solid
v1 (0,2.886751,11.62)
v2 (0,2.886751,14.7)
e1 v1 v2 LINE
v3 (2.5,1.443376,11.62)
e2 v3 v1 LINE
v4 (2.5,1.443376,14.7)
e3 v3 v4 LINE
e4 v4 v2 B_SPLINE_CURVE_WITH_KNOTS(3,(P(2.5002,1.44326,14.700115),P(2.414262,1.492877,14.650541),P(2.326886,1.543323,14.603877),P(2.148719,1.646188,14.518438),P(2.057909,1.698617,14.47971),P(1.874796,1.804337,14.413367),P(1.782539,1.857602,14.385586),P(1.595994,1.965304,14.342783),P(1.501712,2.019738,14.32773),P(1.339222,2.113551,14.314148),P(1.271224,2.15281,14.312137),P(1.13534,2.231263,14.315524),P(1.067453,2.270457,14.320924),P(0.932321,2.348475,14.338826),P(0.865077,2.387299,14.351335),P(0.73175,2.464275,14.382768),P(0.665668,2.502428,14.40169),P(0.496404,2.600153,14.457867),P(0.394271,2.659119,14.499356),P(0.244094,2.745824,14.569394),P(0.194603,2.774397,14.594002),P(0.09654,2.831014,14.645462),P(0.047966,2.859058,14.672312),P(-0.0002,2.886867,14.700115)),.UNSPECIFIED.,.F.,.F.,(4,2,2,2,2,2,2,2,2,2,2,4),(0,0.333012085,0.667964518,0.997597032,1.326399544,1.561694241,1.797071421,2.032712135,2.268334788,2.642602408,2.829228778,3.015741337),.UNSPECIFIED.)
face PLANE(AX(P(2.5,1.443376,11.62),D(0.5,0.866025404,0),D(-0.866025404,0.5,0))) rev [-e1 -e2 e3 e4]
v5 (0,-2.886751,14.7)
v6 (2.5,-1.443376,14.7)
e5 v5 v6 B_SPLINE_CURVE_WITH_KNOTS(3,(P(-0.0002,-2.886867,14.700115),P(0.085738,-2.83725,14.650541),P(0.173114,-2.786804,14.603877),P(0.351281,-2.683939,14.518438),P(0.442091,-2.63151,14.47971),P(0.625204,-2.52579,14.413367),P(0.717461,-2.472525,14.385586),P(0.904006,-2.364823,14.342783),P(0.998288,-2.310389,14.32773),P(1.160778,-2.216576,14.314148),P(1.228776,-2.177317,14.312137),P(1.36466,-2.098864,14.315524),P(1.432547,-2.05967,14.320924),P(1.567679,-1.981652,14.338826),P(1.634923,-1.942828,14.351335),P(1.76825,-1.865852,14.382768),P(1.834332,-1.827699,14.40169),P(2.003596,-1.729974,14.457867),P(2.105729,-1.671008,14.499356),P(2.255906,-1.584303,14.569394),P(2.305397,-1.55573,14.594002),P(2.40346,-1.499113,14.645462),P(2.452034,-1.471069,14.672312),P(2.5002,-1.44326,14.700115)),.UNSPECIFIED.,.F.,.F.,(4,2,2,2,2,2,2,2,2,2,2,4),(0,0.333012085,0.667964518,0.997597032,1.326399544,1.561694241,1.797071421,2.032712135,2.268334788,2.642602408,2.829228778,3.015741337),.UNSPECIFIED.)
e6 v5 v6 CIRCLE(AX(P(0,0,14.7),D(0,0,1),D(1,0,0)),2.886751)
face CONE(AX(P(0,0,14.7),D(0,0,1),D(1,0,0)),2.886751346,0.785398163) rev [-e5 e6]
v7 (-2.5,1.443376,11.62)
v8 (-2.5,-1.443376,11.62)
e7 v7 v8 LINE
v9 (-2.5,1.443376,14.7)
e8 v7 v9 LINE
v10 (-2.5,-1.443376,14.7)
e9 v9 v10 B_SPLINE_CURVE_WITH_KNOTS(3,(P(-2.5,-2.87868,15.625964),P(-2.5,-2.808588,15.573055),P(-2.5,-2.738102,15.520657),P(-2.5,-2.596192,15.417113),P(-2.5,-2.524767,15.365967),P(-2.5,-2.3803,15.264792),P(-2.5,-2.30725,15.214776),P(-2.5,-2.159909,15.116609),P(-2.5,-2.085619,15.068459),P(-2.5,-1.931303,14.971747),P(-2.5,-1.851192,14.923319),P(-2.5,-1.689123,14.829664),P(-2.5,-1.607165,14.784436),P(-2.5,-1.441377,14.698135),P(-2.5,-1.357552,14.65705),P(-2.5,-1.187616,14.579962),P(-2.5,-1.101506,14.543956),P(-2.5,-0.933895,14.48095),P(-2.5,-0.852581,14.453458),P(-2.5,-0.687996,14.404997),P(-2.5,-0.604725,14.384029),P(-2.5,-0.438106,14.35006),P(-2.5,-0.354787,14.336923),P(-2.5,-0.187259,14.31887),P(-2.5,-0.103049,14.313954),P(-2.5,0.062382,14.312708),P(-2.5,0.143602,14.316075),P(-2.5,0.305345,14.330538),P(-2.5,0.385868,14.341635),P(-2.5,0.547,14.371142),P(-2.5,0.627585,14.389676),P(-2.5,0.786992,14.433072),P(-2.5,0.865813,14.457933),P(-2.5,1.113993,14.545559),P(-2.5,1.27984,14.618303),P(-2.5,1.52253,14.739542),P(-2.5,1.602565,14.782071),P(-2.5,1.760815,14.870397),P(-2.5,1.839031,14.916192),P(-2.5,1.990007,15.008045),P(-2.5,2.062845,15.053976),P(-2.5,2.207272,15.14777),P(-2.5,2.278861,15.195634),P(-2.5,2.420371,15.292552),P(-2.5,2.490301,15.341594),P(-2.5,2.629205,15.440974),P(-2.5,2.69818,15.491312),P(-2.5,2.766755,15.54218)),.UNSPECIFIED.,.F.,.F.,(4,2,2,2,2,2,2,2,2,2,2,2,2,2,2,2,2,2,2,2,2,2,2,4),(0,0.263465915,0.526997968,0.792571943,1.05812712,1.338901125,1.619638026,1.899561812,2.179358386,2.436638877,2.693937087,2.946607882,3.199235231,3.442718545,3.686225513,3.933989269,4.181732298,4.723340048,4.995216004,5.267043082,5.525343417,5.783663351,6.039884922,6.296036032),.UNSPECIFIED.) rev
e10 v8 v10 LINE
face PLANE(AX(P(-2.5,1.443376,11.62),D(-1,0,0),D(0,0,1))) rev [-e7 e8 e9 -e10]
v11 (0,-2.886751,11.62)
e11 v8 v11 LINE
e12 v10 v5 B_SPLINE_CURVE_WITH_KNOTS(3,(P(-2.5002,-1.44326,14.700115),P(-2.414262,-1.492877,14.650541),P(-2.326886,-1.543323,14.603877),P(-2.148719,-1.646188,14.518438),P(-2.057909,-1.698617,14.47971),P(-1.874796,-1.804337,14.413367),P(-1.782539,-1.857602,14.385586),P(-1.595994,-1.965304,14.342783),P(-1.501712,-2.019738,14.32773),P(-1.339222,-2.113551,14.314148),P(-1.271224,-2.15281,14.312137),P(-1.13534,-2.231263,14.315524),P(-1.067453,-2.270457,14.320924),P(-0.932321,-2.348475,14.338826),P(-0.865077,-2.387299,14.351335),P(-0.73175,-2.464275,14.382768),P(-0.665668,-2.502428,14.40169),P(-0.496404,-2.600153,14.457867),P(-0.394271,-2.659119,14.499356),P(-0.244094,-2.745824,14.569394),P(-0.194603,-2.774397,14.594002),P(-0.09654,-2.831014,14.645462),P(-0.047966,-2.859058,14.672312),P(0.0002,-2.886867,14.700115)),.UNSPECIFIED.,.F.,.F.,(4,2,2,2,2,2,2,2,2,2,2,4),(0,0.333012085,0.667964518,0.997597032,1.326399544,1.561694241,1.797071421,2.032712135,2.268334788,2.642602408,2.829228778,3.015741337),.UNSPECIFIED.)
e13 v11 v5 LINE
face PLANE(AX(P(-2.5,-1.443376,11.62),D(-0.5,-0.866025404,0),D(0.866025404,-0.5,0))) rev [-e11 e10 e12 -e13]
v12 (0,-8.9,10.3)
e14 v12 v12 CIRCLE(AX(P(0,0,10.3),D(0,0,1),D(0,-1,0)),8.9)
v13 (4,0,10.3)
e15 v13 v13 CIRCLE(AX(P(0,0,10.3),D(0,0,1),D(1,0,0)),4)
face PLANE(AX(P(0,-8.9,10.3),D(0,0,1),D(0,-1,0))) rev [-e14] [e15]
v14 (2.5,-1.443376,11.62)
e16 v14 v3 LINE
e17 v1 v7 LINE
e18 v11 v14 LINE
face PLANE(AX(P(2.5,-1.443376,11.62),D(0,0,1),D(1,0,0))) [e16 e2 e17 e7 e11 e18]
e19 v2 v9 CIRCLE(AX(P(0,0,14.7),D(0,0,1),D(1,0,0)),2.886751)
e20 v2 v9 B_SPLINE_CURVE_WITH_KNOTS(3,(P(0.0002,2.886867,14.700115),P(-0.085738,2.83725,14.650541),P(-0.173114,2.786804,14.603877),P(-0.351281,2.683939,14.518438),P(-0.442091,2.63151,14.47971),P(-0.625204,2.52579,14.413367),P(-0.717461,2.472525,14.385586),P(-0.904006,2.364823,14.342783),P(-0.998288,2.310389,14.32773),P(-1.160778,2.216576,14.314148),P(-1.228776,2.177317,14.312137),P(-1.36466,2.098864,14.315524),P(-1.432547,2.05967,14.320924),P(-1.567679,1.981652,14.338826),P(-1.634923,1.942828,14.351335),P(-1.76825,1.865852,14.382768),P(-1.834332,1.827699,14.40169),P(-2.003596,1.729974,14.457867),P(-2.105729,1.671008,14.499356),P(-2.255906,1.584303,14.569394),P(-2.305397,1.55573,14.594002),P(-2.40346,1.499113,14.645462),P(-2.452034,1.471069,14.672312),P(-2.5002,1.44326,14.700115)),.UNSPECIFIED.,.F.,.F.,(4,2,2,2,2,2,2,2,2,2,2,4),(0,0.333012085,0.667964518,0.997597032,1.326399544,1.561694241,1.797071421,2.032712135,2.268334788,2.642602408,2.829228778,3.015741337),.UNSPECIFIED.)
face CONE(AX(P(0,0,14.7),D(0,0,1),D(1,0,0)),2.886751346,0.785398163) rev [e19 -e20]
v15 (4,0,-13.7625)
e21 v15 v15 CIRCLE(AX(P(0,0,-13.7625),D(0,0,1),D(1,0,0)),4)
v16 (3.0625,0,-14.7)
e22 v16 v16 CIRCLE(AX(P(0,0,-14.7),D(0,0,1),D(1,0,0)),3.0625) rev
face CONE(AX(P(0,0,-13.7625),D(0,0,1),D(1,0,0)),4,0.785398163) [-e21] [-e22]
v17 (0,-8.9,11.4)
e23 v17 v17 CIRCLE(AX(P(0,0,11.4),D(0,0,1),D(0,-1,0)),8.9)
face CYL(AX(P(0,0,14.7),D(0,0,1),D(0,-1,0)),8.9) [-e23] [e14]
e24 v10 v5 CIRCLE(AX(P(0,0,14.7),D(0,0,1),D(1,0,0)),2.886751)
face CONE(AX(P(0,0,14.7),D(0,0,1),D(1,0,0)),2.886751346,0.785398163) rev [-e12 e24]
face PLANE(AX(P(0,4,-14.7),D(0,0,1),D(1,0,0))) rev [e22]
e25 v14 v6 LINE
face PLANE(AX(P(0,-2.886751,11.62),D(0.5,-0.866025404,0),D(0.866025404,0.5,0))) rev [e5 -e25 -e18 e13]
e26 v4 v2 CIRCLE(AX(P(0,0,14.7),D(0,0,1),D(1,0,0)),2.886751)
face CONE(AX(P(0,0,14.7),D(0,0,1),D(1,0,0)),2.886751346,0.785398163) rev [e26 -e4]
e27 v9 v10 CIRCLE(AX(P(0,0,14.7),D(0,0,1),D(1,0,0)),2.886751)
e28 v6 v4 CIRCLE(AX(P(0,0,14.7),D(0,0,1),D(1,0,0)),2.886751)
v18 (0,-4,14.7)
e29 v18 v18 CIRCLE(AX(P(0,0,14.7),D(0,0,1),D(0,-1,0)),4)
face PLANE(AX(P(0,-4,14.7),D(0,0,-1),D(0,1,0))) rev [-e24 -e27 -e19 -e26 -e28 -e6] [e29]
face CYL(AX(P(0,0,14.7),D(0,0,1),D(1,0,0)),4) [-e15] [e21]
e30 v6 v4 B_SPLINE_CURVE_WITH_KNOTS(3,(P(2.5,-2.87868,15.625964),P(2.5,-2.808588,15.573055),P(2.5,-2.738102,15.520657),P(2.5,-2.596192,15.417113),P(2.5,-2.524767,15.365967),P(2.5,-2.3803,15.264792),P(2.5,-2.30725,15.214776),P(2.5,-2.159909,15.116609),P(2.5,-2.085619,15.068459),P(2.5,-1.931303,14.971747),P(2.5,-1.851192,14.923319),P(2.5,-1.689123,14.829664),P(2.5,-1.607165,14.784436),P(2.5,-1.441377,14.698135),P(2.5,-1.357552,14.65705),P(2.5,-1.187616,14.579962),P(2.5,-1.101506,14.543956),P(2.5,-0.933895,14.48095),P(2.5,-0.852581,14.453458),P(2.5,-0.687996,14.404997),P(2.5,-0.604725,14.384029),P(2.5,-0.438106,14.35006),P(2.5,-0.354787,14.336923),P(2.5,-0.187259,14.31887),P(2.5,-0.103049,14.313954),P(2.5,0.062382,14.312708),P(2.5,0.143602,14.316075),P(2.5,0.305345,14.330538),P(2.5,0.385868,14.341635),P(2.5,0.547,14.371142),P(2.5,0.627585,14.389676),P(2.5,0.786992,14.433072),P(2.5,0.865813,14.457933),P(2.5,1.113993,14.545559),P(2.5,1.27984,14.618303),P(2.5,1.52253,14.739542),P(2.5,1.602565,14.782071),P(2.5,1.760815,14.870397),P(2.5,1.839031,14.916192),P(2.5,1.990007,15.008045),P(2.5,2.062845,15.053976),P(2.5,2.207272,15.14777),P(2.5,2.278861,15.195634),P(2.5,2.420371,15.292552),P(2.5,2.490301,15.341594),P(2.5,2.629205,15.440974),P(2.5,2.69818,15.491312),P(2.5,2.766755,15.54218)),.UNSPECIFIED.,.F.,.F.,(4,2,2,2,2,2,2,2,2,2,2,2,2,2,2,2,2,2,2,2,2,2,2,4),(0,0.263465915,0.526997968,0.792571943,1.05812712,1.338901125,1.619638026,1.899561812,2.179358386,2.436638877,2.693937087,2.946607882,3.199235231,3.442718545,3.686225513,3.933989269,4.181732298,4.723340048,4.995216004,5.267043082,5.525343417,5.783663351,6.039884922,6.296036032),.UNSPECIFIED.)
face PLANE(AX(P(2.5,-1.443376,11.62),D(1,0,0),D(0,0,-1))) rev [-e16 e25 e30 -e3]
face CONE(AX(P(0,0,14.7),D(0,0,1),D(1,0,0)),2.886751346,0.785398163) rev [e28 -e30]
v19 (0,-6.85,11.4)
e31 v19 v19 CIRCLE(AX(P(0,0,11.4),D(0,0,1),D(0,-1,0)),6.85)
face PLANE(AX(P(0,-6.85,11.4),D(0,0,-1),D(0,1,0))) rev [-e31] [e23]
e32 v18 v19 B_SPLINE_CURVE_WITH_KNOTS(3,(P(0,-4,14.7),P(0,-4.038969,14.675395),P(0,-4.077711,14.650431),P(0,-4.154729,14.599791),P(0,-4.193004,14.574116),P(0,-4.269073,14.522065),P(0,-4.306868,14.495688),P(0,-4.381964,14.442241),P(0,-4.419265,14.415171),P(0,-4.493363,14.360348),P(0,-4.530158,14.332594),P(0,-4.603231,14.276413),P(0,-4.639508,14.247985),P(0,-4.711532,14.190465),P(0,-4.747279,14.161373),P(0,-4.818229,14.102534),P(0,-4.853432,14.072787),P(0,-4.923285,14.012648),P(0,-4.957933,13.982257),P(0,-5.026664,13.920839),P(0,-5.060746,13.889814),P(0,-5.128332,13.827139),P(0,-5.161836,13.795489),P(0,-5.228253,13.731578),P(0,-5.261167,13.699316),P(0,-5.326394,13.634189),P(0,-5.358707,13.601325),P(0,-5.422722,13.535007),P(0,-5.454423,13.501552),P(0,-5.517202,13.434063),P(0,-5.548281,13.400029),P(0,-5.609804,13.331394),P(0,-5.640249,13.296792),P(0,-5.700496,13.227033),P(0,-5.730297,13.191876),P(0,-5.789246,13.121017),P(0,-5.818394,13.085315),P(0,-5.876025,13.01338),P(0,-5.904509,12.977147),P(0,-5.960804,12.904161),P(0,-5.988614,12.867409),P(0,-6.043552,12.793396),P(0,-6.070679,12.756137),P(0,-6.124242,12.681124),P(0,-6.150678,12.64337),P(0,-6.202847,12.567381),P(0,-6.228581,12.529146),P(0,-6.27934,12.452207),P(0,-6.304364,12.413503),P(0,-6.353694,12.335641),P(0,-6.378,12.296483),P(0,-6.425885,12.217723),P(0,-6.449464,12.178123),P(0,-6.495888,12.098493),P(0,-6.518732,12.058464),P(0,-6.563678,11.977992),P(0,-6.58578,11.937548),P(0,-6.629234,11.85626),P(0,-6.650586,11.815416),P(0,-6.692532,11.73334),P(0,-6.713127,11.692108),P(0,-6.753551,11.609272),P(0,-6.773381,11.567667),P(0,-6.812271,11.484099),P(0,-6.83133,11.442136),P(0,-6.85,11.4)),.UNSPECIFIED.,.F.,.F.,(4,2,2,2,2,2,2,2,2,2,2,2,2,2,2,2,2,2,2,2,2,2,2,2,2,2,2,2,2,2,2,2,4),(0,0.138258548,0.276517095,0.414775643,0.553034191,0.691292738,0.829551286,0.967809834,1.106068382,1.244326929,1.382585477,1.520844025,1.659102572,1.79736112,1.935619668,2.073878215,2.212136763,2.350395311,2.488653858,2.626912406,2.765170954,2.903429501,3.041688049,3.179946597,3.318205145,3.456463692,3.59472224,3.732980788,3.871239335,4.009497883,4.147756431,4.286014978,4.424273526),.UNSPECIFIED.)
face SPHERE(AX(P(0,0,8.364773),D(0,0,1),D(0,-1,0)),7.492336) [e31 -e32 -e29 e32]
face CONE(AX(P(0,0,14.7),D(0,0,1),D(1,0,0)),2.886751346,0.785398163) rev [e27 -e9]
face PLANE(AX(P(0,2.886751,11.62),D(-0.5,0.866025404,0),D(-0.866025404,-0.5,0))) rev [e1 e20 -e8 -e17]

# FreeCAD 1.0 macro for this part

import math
import FreeCAD as App
import Part
import Sketcher
Q = App.Units.Quantity


def edges_at(feature, points):
    """Names of the edges that pass closest to the given points."""
    edges = feature.Shape.Edges
    near = lambda p: min(range(len(edges)), key=lambda i: edges[i].distToShape(Part.Vertex(*p))[0])
    return sorted({f"Edge{near(p) + 1}" for p in points})

doc = App.newDocument("Part")
params = doc.addObject("Spreadsheet::Sheet", "Params")
for row, (alias, value) in enumerate([
    ("sketch1_width", "4 mm"),
    ("sketch1_height", "25 mm"),
    ("revolution_angle", "360 deg"),
    ("chamfer_size", "0.9375 mm"),
    ("sketch2_width", "4 mm"),
    ("sketch2_width2", "8.9 mm"),
    ("sketch2_height", "4.4 mm"),
    ("sketch2_height2", "1.1 mm"),
    ("sketch2_width3", "2.05 mm"),
    ("revolution2_angle", "360 deg"),
    ("pocket1_length", "3.08 mm"),
    ("groove_angle", "360 deg"),
], start=1):
    params.set(f"A{row}", alias)
    params.set(f"B{row}", "=" + value)
    params.setAlias(f"B{row}", alias)

body = doc.addObject("PartDesign::Body", "Body")

sketch1 = body.newObject("Sketcher::SketchObject", "Sketch")
sketch1.AttachmentSupport = (doc.getObject("YZ_Plane"), [""])
sketch1.MapMode = "FlatFace"
sketch1.addGeometry(Part.LineSegment(App.Vector(4, 10.3, 0), App.Vector(0, 10.3, 0)), False)
sketch1.addGeometry(Part.LineSegment(App.Vector(0, 10.3, 0), App.Vector(0, -14.7, 0)), False)
sketch1.addGeometry(Part.LineSegment(App.Vector(0, -14.7, 0), App.Vector(4, -14.7, 0)), False)
sketch1.addGeometry(Part.LineSegment(App.Vector(4, -14.7, 0), App.Vector(4, 10.3, 0)), False)
sketch1.addConstraint(Sketcher.Constraint("Coincident", 0, 2, 1, 1))
sketch1.addConstraint(Sketcher.Constraint("Coincident", 1, 2, 2, 1))
sketch1.addConstraint(Sketcher.Constraint("Coincident", 2, 2, 3, 1))
sketch1.addConstraint(Sketcher.Constraint("Coincident", 3, 2, 0, 1))
sketch1.addConstraint(Sketcher.Constraint("Horizontal", 0))
sketch1.addConstraint(Sketcher.Constraint("Vertical", 1))
sketch1.addConstraint(Sketcher.Constraint("Horizontal", 2))
sketch1.addConstraint(Sketcher.Constraint("Vertical", 3))
sketch1.addConstraint(Sketcher.Constraint("PointOnObject", 0, 2, -2))
sketch1.addConstraint(Sketcher.Constraint("DistanceX", 0, 2, 0, 1, 4.0))
sketch1.addConstraint(Sketcher.Constraint("DistanceY", 1, 2, 1, 1, 25.0))
sketch1.addConstraint(Sketcher.Constraint("DistanceY", -1, 1, 0, 2, 10.3))
sketch1.setExpression("Constraints[9]", "Params.sketch1_width")
sketch1.setExpression("Constraints[10]", "Params.sketch1_height")
revolution = body.newObject("PartDesign::Revolution", "Revolution")
revolution.Profile = sketch1
revolution.ReferenceAxis = (sketch1, ["V_Axis"])
revolution.setExpression("Angle", "Params.revolution_angle")
doc.recompute()

chamfer = body.newObject("PartDesign::Chamfer", "Chamfer")
chamfer.Base = (revolution, edges_at(revolution, [(-4, 0, -14.7)]))
chamfer.setExpression("Size", "Params.chamfer_size")

sketch2 = body.newObject("Sketcher::SketchObject", "Sketch001")
sketch2.AttachmentSupport = (doc.getObject("YZ_Plane"), [""])
sketch2.MapMode = "FlatFace"
sketch2.addGeometry(Part.LineSegment(App.Vector(0, 14.7, 0), App.Vector(0, 10.3, 0)), False)
sketch2.addGeometry(Part.LineSegment(App.Vector(0, 10.3, 0), App.Vector(8.9, 10.3, 0)), False)
sketch2.addGeometry(Part.LineSegment(App.Vector(8.9, 10.3, 0), App.Vector(8.9, 11.4, 0)), False)
sketch2.addGeometry(Part.LineSegment(App.Vector(8.9, 11.4, 0), App.Vector(6.85, 11.4, 0)), False)
sketch2.addGeometry(Part.ArcOfCircle(Part.Circle(App.Vector(0, 8.364773, 0), App.Vector(0, 0, 1), 7.492336), math.radians(23.898078), math.radians(57.73209)), False)
sketch2.addGeometry(Part.LineSegment(App.Vector(4, 14.7, 0), App.Vector(0, 14.7, 0)), False)
sketch2.addConstraint(Sketcher.Constraint("Coincident", 0, 2, 1, 1))
sketch2.addConstraint(Sketcher.Constraint("Coincident", 1, 2, 2, 1))
sketch2.addConstraint(Sketcher.Constraint("Coincident", 2, 2, 3, 1))
sketch2.addConstraint(Sketcher.Constraint("Coincident", 3, 2, 4, 1))
sketch2.addConstraint(Sketcher.Constraint("Coincident", 4, 2, 5, 1))
sketch2.addConstraint(Sketcher.Constraint("Coincident", 5, 2, 0, 1))
sketch2.addConstraint(Sketcher.Constraint("Vertical", 0))
sketch2.addConstraint(Sketcher.Constraint("Horizontal", 1))
sketch2.addConstraint(Sketcher.Constraint("Vertical", 2))
sketch2.addConstraint(Sketcher.Constraint("Horizontal", 3))
sketch2.addConstraint(Sketcher.Constraint("Horizontal", 5))
sketch2.addConstraint(Sketcher.Constraint("PointOnObject", 4, 3, -2))
sketch2.addConstraint(Sketcher.Constraint("PointOnObject", 0, 2, -2))
sketch2.addConstraint(Sketcher.Constraint("DistanceX", 5, 2, 5, 1, 4.0))
sketch2.addConstraint(Sketcher.Constraint("DistanceX", 1, 1, 1, 2, 8.9))
sketch2.addConstraint(Sketcher.Constraint("DistanceY", 0, 2, 0, 1, 4.4))
sketch2.addConstraint(Sketcher.Constraint("DistanceY", 2, 1, 2, 2, 1.1))
sketch2.addConstraint(Sketcher.Constraint("DistanceX", 3, 2, 3, 1, 2.05))
sketch2.addConstraint(Sketcher.Constraint("DistanceY", -1, 1, 0, 2, 10.3))
sketch2.setExpression("Constraints[13]", "Params.sketch2_width")
sketch2.setExpression("Constraints[14]", "Params.sketch2_width2")
sketch2.setExpression("Constraints[15]", "Params.sketch2_height")
sketch2.setExpression("Constraints[16]", "Params.sketch2_height2")
sketch2.setExpression("Constraints[17]", "Params.sketch2_width3")
revolution2 = body.newObject("PartDesign::Revolution", "Revolution001")
revolution2.Profile = sketch2
revolution2.ReferenceAxis = (sketch2, ["V_Axis"])
revolution2.setExpression("Angle", "Params.revolution2_angle")

sketch3 = body.newObject("Sketcher::SketchObject", "Sketch002")
sketch3.AttachmentSupport = (doc.getObject("XY_Plane"), [""])
sketch3.MapMode = "FlatFace"
sketch3.AttachmentOffset = App.Placement(App.Vector(0, 0, 14.7), App.Rotation())
sketch3.addGeometry(Part.LineSegment(App.Vector(2.5, -1.443376, 0), App.Vector(2.5, 1.443376, 0)), False)
sketch3.addGeometry(Part.LineSegment(App.Vector(2.5, 1.443376, 0), App.Vector(0, 2.886751, 0)), False)
sketch3.addGeometry(Part.LineSegment(App.Vector(0, 2.886751, 0), App.Vector(-2.5, 1.443376, 0)), False)
sketch3.addGeometry(Part.LineSegment(App.Vector(-2.5, 1.443376, 0), App.Vector(-2.5, -1.443376, 0)), False)
sketch3.addGeometry(Part.LineSegment(App.Vector(-2.5, -1.443376, 0), App.Vector(0, -2.886751, 0)), False)
sketch3.addGeometry(Part.LineSegment(App.Vector(0, -2.886751, 0), App.Vector(2.5, -1.443376, 0)), False)
sketch3.addConstraint(Sketcher.Constraint("Coincident", 0, 2, 1, 1))
sketch3.addConstraint(Sketcher.Constraint("Coincident", 1, 2, 2, 1))
sketch3.addConstraint(Sketcher.Constraint("Coincident", 2, 2, 3, 1))
sketch3.addConstraint(Sketcher.Constraint("Coincident", 3, 2, 4, 1))
sketch3.addConstraint(Sketcher.Constraint("Coincident", 4, 2, 5, 1))
sketch3.addConstraint(Sketcher.Constraint("Coincident", 5, 2, 0, 1))
sketch3.addConstraint(Sketcher.Constraint("Vertical", 0))
sketch3.addConstraint(Sketcher.Constraint("Vertical", 3))
sketch3.addConstraint(Sketcher.Constraint("Symmetric", 0, 2, 3, 2, -1, 1))
sketch3.addConstraint(Sketcher.Constraint("Symmetric", 1, 2, 4, 2, -1, 1))
sketch3.addConstraint(Sketcher.Constraint("PointOnObject", 1, 2, -2))
sketch3.addConstraint(Sketcher.Constraint("Parallel", 2, 5))
sketch3.addConstraint(Sketcher.Constraint("Horizontal", 0, 2, 2, 2))
sketch3.addConstraint(Sketcher.Constraint("Angle", 1, Q("150 deg")))
sketch3.addConstraint(Sketcher.Constraint("DistanceX", 2, 2, 0, 2, 5.0))
sketch3.addConstraint(Sketcher.Constraint("DistanceY", 0, 1, 0, 2, 2.886751))
pocket1 = body.newObject("PartDesign::Pocket", "Pocket")
pocket1.Profile = sketch3
pocket1.setExpression("Length", "Params.pocket1_length")

sketch4 = body.newObject("Sketcher::SketchObject", "Sketch003")
sketch4.AttachmentSupport = (doc.getObject("YZ_Plane"), [""])
sketch4.MapMode = "FlatFace"
sketch4.addGeometry(Part.LineSegment(App.Vector(0, 14.7, 0), App.Vector(-2.886751, 14.7, 0)), False)
sketch4.addGeometry(Part.LineSegment(App.Vector(-2.886751, 14.7, 0), App.Vector(0, 11.813249, 0)), False)
sketch4.addGeometry(Part.LineSegment(App.Vector(0, 11.813249, 0), App.Vector(0, 14.7, 0)), False)
sketch4.addConstraint(Sketcher.Constraint("Coincident", 0, 2, 1, 1))
sketch4.addConstraint(Sketcher.Constraint("Coincident", 1, 2, 2, 1))
sketch4.addConstraint(Sketcher.Constraint("Coincident", 2, 2, 0, 1))
sketch4.addConstraint(Sketcher.Constraint("Horizontal", 0))
sketch4.addConstraint(Sketcher.Constraint("Vertical", 2))
sketch4.addConstraint(Sketcher.Constraint("PointOnObject", 1, 2, -2))
sketch4.addConstraint(Sketcher.Constraint("Equal", 0, 2))
sketch4.addConstraint(Sketcher.Constraint("DistanceY", -1, 1, 0, 2, 14.7))
sketch4.addConstraint(Sketcher.Constraint("DistanceX", 0, 2, 0, 1, 2.886751))
groove = body.newObject("PartDesign::Groove", "Groove")
groove.Profile = sketch4
groove.ReferenceAxis = (sketch4, ["V_Axis"])
groove.setExpression("Angle", "Params.groove_angle")

doc.recompute()
